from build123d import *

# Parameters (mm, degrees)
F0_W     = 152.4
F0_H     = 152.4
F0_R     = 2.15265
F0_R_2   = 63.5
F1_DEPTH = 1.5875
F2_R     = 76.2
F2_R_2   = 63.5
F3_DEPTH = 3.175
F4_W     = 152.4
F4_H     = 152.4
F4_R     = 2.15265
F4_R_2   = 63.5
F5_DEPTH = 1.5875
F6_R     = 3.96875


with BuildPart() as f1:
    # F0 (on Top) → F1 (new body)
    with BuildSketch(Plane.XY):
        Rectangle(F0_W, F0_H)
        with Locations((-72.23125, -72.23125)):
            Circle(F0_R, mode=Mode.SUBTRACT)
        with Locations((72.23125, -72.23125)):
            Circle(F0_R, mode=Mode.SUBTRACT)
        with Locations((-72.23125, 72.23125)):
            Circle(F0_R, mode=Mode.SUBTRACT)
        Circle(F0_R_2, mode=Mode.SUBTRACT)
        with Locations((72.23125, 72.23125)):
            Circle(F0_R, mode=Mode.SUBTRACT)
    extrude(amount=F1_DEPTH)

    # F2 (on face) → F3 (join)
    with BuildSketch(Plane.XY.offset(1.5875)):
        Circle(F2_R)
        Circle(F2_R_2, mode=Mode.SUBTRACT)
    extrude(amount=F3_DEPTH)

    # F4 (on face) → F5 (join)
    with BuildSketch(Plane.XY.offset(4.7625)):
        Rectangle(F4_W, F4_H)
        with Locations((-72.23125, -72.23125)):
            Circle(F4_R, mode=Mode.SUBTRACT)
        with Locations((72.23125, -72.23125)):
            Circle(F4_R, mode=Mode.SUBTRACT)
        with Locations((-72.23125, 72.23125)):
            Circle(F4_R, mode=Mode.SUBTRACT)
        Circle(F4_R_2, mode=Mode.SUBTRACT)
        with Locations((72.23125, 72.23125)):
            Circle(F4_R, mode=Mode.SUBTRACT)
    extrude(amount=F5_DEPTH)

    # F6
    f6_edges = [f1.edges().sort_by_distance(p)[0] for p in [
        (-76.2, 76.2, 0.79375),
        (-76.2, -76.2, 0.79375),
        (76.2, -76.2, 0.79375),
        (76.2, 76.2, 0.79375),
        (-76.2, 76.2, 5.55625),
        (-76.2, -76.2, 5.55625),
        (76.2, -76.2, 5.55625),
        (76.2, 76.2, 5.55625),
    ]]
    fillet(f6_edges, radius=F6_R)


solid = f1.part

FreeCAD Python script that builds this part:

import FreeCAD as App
import Part
import Sketcher
Q = App.Units.Quantity


def edges_at(feature, points):
    """Names of the edges that pass closest to the given points."""
    edges = feature.Shape.Edges
    near = lambda p: min(range(len(edges)), key=lambda i: edges[i].distToShape(Part.Vertex(*p))[0])
    return sorted({f"Edge{near(p) + 1}" for p in points})


def add_polygon(sketch, points):
    """Adds a closed chain of lines whose ends are joined by coincident constraints."""
    first, n = sketch.GeometryCount, len(points)
    for a, b in zip(points, points[1:] + points[:1]):
        sketch.addGeometry(Part.LineSegment(App.Vector(*a, 0), App.Vector(*b, 0)), False)
    for i in range(n):
        sketch.addConstraint(Sketcher.Constraint("Coincident", first + i, 2, first + (i + 1) % n, 1))

doc = App.newDocument("Part")
body = doc.addObject("PartDesign::Body", "Body")

# Sketch on XY plane
sketch1 = body.newObject("Sketcher::SketchObject", "Sketch")
sketch1.AttachmentSupport = (doc.getObject("XY_Plane"), [""])
sketch1.MapMode = "FlatFace"
add_polygon(sketch1, [(-76.2, 76.2), (-76.2, -76.2), (76.2, -76.2), (76.2, 76.2)])  # lines 0-3
sketch1.addGeometry(Part.Circle(App.Vector(-72.23125, -72.23125, 0), App.Vector(0, 0, 1), 2.15265), False)  # 4
sketch1.addGeometry(Part.Circle(App.Vector(72.23125, -72.23125, 0), App.Vector(0, 0, 1), 2.15265), False)  # 5
sketch1.addGeometry(Part.Circle(App.Vector(-72.23125, 72.23125, 0), App.Vector(0, 0, 1), 2.15265), False)  # 6
sketch1.addGeometry(Part.Circle(App.Vector(0, 0, 0), App.Vector(0, 0, 1), 63.5), False)  # 7
sketch1.addGeometry(Part.Circle(App.Vector(72.23125, 72.23125, 0), App.Vector(0, 0, 1), 2.15265), False)  # 8
sketch1.addConstraint([
    Sketcher.Constraint("Vertical", 0),
    Sketcher.Constraint("Horizontal", 1),
    Sketcher.Constraint("Vertical", 2),
    Sketcher.Constraint("Horizontal", 3),
    Sketcher.Constraint("Coincident", 7, 3, -1, 1),
    Sketcher.Constraint("Equal", 4, 5),
    Sketcher.Constraint("Equal", 5, 6),
    Sketcher.Constraint("Equal", 6, 8),
    Sketcher.Constraint("Symmetric", 5, 3, 6, 3, -1, 1),
    Sketcher.Constraint("Symmetric", 4, 3, 8, 3, -1, 1),
    Sketcher.Constraint("Symmetric", 0, 2, 2, 2, -1, 1),
    Sketcher.Constraint("Symmetric", 4, 3, 5, 3, -2),
    Sketcher.Constraint("Equal", 3, 0),
    Sketcher.Constraint("Diameter", 7, Q("5 in")),
    Sketcher.Constraint("DistanceX", 1, 1, 1, 2, Q("6 in")),
    Sketcher.Constraint("Diameter", 4, Q("0.1695 in")),
    Sketcher.Constraint("DistanceX", 4, 3, -1, 1, Q("2.84375 in")),
    Sketcher.Constraint("DistanceY", 4, 3, -1, 1, Q("2.84375 in")),
])
pad1 = body.newObject("PartDesign::Pad", "Pad")
pad1.Profile = sketch1
pad1.Length = Q("0.0625 in")

# Sketch on XY plane
sketch2 = body.newObject("Sketcher::SketchObject", "Sketch001")
sketch2.AttachmentSupport = (doc.getObject("XY_Plane"), [""])
sketch2.MapMode = "FlatFace"
sketch2.AttachmentOffset = App.Placement(App.Vector(0, 0, 0.0625 * 25.4), App.Rotation())
sketch2.addGeometry([
    Part.Circle(App.Vector(0, 0, 0), App.Vector(0, 0, 1), 76.2),
    Part.Circle(App.Vector(0, 0, 0), App.Vector(0, 0, 1), 63.5),
], False)
sketch2.addConstraint([
    Sketcher.Constraint("Coincident", 0, 3, -1, 1),
    Sketcher.Constraint("Coincident", 1, 3, -1, 1),
    Sketcher.Constraint("Diameter", 0, Q("6 in")),
    Sketcher.Constraint("Diameter", 1, Q("5 in")),
])
pad2 = body.newObject("PartDesign::Pad", "Pad001")
pad2.Profile = sketch2
pad2.Length = Q("0.125 in")

# Sketch on XY plane
sketch3 = body.newObject("Sketcher::SketchObject", "Sketch002")
sketch3.AttachmentSupport = (doc.getObject("XY_Plane"), [""])
sketch3.MapMode = "FlatFace"
sketch3.AttachmentOffset = App.Placement(App.Vector(0, 0, 0.1875 * 25.4), App.Rotation())
add_polygon(sketch3, [(-76.2, 76.2), (-76.2, -76.2), (76.2, -76.2), (76.2, 76.2)])  # lines 0-3
sketch3.addGeometry(Part.Circle(App.Vector(-72.23125, -72.23125, 0), App.Vector(0, 0, 1), 2.15265), False)  # 4
sketch3.addGeometry(Part.Circle(App.Vector(72.23125, -72.23125, 0), App.Vector(0, 0, 1), 2.15265), False)  # 5
sketch3.addGeometry(Part.Circle(App.Vector(-72.23125, 72.23125, 0), App.Vector(0, 0, 1), 2.15265), False)  # 6
sketch3.addGeometry(Part.Circle(App.Vector(0, 0, 0), App.Vector(0, 0, 1), 63.5), False)  # 7
sketch3.addGeometry(Part.Circle(App.Vector(72.23125, 72.23125, 0), App.Vector(0, 0, 1), 2.15265), False)  # 8
sketch3.addConstraint([
    Sketcher.Constraint("Vertical", 0),
    Sketcher.Constraint("Horizontal", 1),
    Sketcher.Constraint("Vertical", 2),
    Sketcher.Constraint("Horizontal", 3),
    Sketcher.Constraint("Coincident", 7, 3, -1, 1),
    Sketcher.Constraint("Equal", 4, 5),
    Sketcher.Constraint("Equal", 5, 6),
    Sketcher.Constraint("Equal", 6, 8),
    Sketcher.Constraint("Symmetric", 5, 3, 6, 3, -1, 1),
    Sketcher.Constraint("Symmetric", 4, 3, 8, 3, -1, 1),
    Sketcher.Constraint("Symmetric", 0, 2, 2, 2, -1, 1),
    Sketcher.Constraint("Symmetric", 4, 3, 5, 3, -2),
    Sketcher.Constraint("Equal", 3, 0),
    Sketcher.Constraint("Diameter", 7, Q("5 in")),
    Sketcher.Constraint("DistanceX", 1, 1, 1, 2, Q("6 in")),
    Sketcher.Constraint("Diameter", 4, Q("0.1695 in")),
    Sketcher.Constraint("DistanceX", 4, 3, -1, 1, Q("2.84375 in")),
    Sketcher.Constraint("DistanceY", 4, 3, -1, 1, Q("2.84375 in")),
])
pad3 = body.newObject("PartDesign::Pad", "Pad002")
pad3.Profile = sketch3
pad3.Length = Q("0.0625 in")
doc.recompute()

fillet = body.newObject("PartDesign::Fillet", "Fillet")
fillet.Base = (pad3, edges_at(pad3, [
    (-76.2, 76.2, 0.794),
    (-76.2, -76.2, 0.794),
    (76.2, -76.2, 0.794),
    (76.2, 76.2, 0.794),
    (-76.2, 76.2, 5.556),
    (-76.2, -76.2, 5.556),
    (76.2, -76.2, 5.556),
    (76.2, 76.2, 5.556),
]))
fillet.Radius = Q("0.15625 in")

doc.recompute()
